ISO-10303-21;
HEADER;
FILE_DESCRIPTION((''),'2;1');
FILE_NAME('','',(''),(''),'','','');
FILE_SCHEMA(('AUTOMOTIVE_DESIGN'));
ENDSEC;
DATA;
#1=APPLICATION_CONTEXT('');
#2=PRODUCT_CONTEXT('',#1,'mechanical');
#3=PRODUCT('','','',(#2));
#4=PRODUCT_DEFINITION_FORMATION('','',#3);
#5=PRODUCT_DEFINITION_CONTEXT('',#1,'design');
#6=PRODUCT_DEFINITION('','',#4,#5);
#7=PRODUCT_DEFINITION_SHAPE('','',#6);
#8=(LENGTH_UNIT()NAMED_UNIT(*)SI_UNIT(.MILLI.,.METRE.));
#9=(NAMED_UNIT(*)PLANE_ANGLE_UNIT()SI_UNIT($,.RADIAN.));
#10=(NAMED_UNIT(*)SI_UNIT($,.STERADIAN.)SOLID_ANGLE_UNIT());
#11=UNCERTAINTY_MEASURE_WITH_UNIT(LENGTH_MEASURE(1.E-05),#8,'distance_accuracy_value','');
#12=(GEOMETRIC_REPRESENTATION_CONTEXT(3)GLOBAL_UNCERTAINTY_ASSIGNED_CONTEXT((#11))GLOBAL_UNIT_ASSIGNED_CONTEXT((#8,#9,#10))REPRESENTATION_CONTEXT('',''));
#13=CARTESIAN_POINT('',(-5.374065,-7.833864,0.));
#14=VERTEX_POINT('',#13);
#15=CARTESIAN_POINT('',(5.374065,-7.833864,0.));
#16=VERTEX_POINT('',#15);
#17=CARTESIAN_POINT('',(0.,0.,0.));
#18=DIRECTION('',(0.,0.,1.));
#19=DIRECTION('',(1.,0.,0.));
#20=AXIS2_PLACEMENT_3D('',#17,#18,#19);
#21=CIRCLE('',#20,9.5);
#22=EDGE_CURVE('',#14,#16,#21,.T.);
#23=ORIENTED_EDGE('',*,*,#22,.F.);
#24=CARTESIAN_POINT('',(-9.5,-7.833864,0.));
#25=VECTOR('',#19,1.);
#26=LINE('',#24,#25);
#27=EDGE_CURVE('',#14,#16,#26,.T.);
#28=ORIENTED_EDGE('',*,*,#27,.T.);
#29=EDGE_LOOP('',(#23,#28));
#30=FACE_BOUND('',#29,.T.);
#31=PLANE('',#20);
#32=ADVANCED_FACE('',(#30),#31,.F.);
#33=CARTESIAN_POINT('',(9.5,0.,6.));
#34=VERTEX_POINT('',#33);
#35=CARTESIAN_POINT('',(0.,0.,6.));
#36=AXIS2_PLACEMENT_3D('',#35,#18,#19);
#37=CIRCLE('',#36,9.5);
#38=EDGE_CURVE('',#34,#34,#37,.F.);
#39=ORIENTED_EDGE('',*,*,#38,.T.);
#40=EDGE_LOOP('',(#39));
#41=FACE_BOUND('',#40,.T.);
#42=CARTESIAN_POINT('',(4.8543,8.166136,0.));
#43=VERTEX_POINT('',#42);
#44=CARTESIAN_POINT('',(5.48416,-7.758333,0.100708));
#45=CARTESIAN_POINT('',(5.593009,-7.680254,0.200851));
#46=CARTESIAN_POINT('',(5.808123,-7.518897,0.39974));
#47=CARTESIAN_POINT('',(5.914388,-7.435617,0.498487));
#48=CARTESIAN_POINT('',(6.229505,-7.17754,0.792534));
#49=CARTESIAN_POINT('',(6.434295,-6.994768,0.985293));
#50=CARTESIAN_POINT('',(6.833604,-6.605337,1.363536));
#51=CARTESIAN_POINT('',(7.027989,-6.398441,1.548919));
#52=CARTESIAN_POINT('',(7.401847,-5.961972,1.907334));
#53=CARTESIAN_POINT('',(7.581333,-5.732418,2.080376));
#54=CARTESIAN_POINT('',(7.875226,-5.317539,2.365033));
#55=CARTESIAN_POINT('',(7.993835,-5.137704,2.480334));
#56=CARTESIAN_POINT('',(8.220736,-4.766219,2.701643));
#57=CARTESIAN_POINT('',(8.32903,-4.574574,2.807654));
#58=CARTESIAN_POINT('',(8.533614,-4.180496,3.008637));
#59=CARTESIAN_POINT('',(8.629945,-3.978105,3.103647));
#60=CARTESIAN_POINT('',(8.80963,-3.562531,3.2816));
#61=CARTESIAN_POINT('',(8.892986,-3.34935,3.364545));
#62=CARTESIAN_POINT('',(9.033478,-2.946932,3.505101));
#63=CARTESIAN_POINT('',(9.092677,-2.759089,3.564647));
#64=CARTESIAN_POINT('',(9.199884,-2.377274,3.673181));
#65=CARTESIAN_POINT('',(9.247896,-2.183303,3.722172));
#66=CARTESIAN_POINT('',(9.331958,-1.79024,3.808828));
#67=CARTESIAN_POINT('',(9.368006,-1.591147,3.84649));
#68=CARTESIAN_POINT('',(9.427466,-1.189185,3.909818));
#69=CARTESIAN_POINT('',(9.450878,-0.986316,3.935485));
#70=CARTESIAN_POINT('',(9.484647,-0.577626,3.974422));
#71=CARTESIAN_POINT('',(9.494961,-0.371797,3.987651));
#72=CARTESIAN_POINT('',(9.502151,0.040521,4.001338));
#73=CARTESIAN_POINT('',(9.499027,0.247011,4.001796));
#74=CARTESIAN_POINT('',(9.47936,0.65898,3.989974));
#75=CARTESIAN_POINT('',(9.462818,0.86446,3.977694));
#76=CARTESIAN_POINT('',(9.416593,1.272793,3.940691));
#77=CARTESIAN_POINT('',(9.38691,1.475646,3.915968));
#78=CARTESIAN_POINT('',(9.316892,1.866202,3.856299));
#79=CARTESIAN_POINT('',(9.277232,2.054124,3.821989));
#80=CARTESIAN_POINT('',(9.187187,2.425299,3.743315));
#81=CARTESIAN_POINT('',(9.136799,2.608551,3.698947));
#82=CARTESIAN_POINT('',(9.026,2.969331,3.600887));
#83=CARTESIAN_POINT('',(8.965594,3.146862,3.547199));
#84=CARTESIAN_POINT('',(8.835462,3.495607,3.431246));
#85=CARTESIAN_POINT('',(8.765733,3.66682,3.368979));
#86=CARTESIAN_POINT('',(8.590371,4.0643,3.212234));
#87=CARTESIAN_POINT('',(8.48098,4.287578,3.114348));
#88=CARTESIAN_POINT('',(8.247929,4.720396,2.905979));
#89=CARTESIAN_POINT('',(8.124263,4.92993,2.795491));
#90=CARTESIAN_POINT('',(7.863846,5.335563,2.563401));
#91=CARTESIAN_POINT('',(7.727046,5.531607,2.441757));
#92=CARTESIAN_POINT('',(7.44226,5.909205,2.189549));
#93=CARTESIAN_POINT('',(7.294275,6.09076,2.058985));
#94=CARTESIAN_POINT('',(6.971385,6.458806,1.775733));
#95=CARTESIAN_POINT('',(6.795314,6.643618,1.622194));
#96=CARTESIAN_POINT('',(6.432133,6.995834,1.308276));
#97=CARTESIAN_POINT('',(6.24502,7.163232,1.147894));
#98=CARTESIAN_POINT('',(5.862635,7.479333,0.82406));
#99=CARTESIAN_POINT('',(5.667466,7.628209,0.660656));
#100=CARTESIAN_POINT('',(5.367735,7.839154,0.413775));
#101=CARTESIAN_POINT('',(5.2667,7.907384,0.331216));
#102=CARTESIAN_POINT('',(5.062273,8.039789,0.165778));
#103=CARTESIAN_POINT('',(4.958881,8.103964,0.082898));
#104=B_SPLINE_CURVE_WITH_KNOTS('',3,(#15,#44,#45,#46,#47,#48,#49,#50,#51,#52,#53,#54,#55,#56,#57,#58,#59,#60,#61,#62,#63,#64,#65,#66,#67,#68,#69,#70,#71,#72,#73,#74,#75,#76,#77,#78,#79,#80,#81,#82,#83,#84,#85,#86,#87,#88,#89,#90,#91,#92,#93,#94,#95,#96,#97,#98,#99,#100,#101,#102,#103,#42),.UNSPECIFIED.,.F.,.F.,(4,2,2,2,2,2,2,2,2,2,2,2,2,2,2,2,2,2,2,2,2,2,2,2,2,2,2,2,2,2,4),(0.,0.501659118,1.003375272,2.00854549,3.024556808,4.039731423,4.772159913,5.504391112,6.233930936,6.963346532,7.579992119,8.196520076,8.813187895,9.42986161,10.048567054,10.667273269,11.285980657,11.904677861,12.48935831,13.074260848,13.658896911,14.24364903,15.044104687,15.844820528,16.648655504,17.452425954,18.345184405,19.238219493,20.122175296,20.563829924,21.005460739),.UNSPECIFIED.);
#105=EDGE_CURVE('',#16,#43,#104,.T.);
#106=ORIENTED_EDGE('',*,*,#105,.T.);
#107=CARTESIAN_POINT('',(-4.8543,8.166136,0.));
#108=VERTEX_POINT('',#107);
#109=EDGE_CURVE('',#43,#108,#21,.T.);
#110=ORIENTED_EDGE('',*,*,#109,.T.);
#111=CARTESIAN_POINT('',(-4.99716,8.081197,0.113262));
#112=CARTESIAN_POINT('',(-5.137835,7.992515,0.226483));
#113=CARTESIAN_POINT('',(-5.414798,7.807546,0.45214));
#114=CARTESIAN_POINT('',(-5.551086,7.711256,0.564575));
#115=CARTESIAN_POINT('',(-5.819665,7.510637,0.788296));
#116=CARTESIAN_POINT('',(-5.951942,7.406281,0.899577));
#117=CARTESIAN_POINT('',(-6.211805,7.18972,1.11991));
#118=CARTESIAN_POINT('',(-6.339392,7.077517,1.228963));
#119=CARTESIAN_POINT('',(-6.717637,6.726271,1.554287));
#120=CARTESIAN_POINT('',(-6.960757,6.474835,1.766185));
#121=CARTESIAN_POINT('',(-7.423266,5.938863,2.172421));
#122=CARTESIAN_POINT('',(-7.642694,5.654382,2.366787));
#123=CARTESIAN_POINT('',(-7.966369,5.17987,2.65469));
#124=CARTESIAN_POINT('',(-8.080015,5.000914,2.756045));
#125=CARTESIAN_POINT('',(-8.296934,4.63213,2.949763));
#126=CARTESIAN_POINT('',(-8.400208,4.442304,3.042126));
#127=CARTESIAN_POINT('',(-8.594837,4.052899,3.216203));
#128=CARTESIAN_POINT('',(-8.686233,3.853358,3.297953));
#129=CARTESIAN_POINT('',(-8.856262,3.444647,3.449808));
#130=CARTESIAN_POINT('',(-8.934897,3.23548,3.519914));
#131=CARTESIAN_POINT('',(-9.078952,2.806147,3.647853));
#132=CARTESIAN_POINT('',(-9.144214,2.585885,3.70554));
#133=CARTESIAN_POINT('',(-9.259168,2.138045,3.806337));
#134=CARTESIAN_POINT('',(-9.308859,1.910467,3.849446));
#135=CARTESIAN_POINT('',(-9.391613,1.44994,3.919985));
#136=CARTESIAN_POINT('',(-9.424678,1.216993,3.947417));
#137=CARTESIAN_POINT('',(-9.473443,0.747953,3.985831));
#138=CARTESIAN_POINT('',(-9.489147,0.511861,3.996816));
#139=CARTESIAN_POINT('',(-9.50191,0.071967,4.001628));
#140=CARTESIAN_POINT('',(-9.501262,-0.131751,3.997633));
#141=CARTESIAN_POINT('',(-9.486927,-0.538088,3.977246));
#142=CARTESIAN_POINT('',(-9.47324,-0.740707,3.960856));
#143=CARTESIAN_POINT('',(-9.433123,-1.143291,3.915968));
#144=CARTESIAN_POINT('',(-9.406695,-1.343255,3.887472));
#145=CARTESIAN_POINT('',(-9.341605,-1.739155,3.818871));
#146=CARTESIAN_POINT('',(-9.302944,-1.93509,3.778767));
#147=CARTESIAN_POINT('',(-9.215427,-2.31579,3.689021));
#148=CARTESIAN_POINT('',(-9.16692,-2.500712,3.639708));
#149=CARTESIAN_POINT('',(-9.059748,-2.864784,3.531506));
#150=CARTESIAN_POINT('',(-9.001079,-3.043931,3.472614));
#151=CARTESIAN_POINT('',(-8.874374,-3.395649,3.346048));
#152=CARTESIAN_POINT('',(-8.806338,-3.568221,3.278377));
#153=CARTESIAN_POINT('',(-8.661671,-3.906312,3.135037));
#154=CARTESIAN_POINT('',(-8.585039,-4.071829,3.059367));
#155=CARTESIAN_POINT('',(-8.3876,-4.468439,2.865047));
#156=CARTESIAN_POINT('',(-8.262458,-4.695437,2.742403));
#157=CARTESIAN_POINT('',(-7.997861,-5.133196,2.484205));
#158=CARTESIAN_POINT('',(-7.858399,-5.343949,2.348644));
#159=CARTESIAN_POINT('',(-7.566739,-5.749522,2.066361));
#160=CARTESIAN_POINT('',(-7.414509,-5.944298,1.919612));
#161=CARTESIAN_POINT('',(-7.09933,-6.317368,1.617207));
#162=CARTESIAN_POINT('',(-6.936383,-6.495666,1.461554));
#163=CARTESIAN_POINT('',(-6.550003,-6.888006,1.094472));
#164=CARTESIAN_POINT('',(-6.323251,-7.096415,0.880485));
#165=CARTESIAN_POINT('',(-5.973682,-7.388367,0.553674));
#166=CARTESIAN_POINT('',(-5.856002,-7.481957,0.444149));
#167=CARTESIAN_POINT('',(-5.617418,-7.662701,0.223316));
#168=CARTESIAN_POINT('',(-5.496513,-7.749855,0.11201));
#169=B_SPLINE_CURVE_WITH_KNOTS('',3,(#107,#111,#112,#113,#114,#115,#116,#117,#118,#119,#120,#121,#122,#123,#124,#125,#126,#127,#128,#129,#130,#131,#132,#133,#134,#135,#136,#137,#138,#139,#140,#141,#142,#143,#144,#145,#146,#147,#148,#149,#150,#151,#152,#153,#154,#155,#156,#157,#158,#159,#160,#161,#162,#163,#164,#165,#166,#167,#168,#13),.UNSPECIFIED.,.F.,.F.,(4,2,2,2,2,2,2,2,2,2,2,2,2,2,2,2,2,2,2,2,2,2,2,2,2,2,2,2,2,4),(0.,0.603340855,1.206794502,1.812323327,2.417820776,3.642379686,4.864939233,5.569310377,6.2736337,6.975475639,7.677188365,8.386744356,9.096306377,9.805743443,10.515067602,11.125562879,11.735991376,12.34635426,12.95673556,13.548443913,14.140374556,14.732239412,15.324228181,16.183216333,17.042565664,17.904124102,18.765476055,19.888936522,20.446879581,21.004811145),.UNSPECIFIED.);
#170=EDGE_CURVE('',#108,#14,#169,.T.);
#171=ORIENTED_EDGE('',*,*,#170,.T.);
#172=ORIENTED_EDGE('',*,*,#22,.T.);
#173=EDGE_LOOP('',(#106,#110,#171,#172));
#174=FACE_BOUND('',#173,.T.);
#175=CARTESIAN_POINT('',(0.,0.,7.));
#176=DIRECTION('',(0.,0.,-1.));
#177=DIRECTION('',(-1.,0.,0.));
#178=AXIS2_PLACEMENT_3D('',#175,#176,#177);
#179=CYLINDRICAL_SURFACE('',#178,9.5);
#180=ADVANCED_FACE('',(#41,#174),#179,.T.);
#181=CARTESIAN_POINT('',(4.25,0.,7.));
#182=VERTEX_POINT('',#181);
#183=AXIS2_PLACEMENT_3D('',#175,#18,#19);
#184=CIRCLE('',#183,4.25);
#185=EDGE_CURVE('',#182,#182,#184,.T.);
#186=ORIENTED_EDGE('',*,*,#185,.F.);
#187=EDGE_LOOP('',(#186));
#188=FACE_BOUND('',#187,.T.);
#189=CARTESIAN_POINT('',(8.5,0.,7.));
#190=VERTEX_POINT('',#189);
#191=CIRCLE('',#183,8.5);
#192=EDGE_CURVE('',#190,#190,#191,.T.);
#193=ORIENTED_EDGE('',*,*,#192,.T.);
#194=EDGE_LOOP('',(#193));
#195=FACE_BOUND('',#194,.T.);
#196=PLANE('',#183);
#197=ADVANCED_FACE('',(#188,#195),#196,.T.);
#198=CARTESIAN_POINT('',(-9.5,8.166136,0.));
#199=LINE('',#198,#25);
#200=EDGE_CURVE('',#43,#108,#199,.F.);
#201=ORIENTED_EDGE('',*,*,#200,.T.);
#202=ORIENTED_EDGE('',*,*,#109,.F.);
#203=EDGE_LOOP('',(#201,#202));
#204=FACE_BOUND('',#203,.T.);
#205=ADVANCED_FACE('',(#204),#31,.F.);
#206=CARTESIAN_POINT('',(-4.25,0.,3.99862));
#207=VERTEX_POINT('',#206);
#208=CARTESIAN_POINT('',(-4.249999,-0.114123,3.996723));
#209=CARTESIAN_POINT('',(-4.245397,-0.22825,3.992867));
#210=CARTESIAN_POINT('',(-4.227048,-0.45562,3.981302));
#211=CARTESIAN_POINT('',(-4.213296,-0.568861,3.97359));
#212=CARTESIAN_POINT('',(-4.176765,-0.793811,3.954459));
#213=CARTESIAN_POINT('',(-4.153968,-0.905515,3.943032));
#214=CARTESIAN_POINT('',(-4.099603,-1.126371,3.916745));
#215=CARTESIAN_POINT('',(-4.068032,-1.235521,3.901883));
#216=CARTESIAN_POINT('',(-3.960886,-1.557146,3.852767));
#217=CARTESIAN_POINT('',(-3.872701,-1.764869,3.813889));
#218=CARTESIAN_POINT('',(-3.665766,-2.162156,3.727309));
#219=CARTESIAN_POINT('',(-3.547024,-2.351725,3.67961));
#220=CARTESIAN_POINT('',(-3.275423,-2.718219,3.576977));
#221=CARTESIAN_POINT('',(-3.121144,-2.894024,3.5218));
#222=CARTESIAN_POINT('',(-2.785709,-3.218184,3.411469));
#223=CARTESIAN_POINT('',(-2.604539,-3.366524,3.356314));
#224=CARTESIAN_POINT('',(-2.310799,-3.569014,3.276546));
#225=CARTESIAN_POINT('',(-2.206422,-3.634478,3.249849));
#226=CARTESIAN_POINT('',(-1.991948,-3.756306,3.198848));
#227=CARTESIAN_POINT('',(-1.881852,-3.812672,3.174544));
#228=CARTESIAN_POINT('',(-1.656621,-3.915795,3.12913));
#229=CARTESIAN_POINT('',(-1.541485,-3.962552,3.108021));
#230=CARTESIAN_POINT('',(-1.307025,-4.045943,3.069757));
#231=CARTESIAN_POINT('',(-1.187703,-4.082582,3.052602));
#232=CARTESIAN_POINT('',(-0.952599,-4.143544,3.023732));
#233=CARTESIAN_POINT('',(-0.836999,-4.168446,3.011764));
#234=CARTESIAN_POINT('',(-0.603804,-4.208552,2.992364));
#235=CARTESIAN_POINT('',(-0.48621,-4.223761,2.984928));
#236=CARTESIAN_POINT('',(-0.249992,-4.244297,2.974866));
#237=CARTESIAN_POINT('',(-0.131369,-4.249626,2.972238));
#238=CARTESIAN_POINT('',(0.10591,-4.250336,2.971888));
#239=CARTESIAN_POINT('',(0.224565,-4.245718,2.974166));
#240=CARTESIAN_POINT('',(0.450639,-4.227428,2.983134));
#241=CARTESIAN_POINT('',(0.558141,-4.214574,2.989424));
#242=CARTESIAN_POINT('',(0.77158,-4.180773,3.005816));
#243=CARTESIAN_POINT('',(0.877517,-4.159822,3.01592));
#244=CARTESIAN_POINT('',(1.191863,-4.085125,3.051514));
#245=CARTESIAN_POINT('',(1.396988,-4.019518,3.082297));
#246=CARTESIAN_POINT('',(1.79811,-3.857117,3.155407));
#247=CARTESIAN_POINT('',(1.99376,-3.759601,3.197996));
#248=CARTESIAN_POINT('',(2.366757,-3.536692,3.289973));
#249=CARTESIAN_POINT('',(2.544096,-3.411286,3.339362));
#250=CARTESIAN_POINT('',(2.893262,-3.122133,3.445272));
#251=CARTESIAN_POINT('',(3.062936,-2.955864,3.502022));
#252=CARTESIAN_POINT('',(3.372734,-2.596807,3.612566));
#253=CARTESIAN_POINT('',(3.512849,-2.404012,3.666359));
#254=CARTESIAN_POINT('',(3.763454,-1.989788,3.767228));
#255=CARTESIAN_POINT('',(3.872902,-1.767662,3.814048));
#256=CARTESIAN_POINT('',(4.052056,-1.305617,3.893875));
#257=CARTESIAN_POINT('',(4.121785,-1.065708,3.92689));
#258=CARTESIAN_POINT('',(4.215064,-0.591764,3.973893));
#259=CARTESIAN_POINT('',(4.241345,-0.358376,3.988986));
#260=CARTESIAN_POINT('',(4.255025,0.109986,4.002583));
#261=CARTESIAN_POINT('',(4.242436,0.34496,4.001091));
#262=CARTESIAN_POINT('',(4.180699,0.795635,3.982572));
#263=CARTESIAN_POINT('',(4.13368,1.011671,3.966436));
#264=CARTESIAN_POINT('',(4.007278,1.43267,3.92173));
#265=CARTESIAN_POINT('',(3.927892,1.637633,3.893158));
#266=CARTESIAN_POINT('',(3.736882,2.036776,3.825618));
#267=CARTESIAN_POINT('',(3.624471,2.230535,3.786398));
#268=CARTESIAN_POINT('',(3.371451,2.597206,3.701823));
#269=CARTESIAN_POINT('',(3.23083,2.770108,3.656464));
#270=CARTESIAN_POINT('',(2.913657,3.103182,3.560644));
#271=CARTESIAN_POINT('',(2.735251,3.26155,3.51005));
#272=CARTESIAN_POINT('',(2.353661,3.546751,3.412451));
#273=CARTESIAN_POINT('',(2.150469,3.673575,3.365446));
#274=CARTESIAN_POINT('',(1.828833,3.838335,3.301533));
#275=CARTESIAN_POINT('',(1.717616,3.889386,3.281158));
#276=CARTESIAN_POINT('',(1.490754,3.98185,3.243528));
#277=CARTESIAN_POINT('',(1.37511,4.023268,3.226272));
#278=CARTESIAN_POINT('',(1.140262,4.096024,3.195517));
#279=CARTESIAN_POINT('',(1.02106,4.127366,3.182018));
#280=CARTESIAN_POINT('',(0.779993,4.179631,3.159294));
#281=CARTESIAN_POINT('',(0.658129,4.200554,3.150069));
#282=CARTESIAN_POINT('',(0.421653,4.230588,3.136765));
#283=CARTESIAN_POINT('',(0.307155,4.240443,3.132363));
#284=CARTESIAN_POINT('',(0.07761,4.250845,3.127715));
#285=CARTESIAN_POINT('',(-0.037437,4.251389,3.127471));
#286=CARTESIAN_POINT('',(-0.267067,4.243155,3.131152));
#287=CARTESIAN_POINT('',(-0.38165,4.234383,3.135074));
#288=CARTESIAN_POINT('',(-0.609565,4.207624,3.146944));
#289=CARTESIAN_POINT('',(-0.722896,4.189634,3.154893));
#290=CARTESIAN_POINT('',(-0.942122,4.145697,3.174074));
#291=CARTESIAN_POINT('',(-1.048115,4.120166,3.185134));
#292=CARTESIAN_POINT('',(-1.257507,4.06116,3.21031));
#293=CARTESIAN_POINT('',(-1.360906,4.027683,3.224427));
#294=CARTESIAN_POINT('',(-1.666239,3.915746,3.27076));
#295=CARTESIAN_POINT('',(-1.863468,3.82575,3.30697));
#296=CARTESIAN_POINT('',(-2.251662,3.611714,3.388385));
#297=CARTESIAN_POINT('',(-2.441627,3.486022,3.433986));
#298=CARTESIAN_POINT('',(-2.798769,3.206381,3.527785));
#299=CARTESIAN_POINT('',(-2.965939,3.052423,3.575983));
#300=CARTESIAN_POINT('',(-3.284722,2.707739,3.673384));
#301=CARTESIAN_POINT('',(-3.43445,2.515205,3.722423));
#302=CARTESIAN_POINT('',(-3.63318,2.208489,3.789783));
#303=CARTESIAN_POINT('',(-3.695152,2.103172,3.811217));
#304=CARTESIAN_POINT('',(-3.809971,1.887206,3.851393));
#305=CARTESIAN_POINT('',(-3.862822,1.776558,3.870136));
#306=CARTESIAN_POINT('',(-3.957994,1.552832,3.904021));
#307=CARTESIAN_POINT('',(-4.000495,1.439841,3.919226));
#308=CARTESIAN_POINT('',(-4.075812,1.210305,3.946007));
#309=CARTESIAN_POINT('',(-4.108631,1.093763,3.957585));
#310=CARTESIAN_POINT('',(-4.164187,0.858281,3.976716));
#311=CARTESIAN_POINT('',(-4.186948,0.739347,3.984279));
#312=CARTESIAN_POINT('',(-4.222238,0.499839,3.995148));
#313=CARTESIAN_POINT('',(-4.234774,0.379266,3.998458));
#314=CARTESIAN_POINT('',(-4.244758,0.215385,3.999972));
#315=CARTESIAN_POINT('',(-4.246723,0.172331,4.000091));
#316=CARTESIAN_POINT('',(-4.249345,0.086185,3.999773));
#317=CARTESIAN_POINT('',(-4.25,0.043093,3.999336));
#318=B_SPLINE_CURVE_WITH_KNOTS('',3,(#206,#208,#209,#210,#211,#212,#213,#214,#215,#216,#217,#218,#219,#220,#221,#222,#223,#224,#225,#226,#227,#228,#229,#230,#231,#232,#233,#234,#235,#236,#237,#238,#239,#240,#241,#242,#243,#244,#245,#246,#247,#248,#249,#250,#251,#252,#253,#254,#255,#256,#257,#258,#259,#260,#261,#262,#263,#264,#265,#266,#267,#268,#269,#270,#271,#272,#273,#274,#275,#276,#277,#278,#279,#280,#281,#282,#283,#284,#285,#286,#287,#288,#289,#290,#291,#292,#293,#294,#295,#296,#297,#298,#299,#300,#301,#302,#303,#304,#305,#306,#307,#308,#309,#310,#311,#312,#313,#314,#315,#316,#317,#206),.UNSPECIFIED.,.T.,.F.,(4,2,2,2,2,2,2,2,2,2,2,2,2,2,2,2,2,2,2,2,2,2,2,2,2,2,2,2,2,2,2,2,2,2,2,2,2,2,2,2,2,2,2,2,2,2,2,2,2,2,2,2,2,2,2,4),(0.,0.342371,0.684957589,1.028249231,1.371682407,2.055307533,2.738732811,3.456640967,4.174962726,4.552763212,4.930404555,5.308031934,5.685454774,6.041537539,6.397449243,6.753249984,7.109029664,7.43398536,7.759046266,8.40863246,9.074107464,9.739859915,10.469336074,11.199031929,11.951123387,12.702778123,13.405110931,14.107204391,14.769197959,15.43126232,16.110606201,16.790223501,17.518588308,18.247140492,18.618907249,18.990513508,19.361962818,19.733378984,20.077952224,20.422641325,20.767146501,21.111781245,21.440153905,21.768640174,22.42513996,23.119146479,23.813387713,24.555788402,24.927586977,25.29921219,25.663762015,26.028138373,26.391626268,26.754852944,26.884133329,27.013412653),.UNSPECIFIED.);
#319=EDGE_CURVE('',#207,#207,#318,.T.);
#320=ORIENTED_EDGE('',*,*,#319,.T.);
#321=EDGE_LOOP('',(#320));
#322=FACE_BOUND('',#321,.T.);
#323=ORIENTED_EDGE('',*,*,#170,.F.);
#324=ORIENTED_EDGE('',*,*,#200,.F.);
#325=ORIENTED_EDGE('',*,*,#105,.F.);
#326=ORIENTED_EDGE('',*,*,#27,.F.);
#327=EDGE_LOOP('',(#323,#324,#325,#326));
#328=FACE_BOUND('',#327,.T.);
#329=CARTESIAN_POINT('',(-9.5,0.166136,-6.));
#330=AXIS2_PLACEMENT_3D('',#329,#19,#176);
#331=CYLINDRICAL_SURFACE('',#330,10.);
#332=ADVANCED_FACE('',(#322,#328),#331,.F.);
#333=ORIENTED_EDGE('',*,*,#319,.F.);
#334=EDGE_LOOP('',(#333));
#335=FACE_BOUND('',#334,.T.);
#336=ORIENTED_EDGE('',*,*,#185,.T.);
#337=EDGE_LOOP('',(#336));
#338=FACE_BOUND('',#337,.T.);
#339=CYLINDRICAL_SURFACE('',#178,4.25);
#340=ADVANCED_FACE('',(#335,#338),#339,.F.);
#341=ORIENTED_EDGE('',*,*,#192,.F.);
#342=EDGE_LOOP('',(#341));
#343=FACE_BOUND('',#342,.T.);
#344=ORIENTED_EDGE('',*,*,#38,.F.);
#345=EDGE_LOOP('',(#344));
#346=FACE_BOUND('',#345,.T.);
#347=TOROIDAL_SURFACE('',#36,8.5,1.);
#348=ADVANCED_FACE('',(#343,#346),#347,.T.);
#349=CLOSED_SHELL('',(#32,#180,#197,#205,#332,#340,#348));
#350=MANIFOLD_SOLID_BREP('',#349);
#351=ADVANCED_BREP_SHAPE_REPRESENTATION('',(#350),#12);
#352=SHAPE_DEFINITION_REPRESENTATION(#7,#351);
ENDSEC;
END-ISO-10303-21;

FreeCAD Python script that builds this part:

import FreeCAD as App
import Part
import Sketcher
from FreeCAD import Vector


def edges_at(feature, points):
    """Names of the edges that pass closest to the given points."""
    edges = feature.Shape.Edges
    near = lambda p: min(range(len(edges)), key=lambda i: edges[i].distToShape(Part.Vertex(*p))[0])
    return sorted({f"Edge{near(p) + 1}" for p in points})

doc = App.newDocument("Part")
body = doc.addObject("PartDesign::Body", "Body")

# Sketch on XY plane
sketch1 = body.newObject("Sketcher::SketchObject", "Sketch")
sketch1.AttachmentSupport = (doc.getObject("XY_Plane"), [""])
sketch1.MapMode = "FlatFace"
sketch1.addGeometry(Part.Circle(Vector(0, 0, 0), Vector(0, 0, 1), 9.5), False)
sketch1.addGeometry(Part.Circle(Vector(0, 0, 0), Vector(0, 0, 1), 4.2), False)
sketch1.addConstraint(Sketcher.Constraint("Coincident", 0, 3, -1, 1))
sketch1.addConstraint(Sketcher.Constraint("Coincident", 1, 3, -1, 1))
sketch1.addConstraint(Sketcher.Constraint("Diameter", 0, 19.0))
sketch1.addConstraint(Sketcher.Constraint("Diameter", 1, 8.5))
pad1 = body.newObject("PartDesign::Pad", "Pad")
pad1.Profile = sketch1
pad1.Length = 7

# Sketch on YZ plane
sketch2 = body.newObject("Sketcher::SketchObject", "Sketch001")
sketch2.AttachmentSupport = (doc.getObject("YZ_Plane"), [""])
sketch2.MapMode = "FlatFace"
sketch2.addGeometry(Part.Circle(Vector(0, -6, 0), Vector(0, 0, 1), 10), False)
sketch2.addConstraint(Sketcher.Constraint("Diameter", 0, 20.0))
sketch2.addConstraint(Sketcher.Constraint("DistanceY", 0, 3, -1, 1, 6.0))
sketch2.addConstraint(Sketcher.Constraint("DistanceX", -1, 1, 0, 3, 0.166136))
pocket1 = body.newObject("PartDesign::Pocket", "Pocket")
pocket1.Profile = sketch2
pocket1.Type = "ThroughAll"
pocket1.Midplane = True
doc.recompute()

fillet = body.newObject("PartDesign::Fillet", "Fillet")
fillet.Base = (pocket1, edges_at(pocket1, [(-9.5, 0, 7)]))
fillet.Radius = 1

doc.recompute()
